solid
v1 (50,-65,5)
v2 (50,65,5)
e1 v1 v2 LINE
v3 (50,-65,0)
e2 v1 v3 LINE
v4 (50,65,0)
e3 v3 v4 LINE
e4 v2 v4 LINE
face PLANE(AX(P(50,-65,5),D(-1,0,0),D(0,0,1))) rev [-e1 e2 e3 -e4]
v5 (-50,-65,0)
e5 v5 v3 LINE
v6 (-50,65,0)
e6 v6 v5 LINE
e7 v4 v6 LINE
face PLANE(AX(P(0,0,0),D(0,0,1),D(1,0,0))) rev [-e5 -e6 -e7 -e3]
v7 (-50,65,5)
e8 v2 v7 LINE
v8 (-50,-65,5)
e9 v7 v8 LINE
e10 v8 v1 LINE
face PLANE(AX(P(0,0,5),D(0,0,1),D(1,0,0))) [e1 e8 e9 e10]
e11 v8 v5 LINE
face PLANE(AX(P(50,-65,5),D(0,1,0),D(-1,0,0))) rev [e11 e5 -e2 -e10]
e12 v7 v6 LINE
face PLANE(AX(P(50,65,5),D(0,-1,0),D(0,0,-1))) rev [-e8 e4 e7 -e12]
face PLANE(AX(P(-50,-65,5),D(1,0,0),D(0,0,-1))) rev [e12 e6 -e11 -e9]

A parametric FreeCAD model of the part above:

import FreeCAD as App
import Part
import Sketcher
Q = App.Units.Quantity

doc = App.newDocument("Part")
body = doc.addObject("PartDesign::Body", "Body")

# Sketch on XY plane
sketch1 = body.newObject("Sketcher::SketchObject", "Sketch")
sketch1.AttachmentSupport = (doc.getObject("XY_Plane"), [""])
sketch1.MapMode = "FlatFace"
sketch1.addGeometry([
    Part.LineSegment(App.Vector(-50, 65, 0), App.Vector(-50, -65, 0)),
    Part.LineSegment(App.Vector(-50, -65, 0), App.Vector(50, -65, 0)),
    Part.LineSegment(App.Vector(50, -65, 0), App.Vector(50, 65, 0)),
    Part.LineSegment(App.Vector(50, 65, 0), App.Vector(-50, 65, 0)),
], False)
sketch1.addConstraint([
    Sketcher.Constraint("Coincident", 0, 2, 1, 1),
    Sketcher.Constraint("Coincident", 1, 2, 2, 1),
    Sketcher.Constraint("Coincident", 2, 2, 3, 1),
    Sketcher.Constraint("Coincident", 3, 2, 0, 1),
    Sketcher.Constraint("Vertical", 0),
    Sketcher.Constraint("Horizontal", 1),
    Sketcher.Constraint("Vertical", 2),
    Sketcher.Constraint("Horizontal", 3),
    Sketcher.Constraint("Symmetric", 0, 2, 2, 2, -1, 1),
    Sketcher.Constraint("DistanceX", 1, 1, 1, 2, Q("100 mm")),
    Sketcher.Constraint("DistanceY", 0, 2, 0, 1, Q("130 mm")),
])
pad1 = body.newObject("PartDesign::Pad", "Pad")
pad1.Profile = sketch1
pad1.Length = 5

doc.recompute()
